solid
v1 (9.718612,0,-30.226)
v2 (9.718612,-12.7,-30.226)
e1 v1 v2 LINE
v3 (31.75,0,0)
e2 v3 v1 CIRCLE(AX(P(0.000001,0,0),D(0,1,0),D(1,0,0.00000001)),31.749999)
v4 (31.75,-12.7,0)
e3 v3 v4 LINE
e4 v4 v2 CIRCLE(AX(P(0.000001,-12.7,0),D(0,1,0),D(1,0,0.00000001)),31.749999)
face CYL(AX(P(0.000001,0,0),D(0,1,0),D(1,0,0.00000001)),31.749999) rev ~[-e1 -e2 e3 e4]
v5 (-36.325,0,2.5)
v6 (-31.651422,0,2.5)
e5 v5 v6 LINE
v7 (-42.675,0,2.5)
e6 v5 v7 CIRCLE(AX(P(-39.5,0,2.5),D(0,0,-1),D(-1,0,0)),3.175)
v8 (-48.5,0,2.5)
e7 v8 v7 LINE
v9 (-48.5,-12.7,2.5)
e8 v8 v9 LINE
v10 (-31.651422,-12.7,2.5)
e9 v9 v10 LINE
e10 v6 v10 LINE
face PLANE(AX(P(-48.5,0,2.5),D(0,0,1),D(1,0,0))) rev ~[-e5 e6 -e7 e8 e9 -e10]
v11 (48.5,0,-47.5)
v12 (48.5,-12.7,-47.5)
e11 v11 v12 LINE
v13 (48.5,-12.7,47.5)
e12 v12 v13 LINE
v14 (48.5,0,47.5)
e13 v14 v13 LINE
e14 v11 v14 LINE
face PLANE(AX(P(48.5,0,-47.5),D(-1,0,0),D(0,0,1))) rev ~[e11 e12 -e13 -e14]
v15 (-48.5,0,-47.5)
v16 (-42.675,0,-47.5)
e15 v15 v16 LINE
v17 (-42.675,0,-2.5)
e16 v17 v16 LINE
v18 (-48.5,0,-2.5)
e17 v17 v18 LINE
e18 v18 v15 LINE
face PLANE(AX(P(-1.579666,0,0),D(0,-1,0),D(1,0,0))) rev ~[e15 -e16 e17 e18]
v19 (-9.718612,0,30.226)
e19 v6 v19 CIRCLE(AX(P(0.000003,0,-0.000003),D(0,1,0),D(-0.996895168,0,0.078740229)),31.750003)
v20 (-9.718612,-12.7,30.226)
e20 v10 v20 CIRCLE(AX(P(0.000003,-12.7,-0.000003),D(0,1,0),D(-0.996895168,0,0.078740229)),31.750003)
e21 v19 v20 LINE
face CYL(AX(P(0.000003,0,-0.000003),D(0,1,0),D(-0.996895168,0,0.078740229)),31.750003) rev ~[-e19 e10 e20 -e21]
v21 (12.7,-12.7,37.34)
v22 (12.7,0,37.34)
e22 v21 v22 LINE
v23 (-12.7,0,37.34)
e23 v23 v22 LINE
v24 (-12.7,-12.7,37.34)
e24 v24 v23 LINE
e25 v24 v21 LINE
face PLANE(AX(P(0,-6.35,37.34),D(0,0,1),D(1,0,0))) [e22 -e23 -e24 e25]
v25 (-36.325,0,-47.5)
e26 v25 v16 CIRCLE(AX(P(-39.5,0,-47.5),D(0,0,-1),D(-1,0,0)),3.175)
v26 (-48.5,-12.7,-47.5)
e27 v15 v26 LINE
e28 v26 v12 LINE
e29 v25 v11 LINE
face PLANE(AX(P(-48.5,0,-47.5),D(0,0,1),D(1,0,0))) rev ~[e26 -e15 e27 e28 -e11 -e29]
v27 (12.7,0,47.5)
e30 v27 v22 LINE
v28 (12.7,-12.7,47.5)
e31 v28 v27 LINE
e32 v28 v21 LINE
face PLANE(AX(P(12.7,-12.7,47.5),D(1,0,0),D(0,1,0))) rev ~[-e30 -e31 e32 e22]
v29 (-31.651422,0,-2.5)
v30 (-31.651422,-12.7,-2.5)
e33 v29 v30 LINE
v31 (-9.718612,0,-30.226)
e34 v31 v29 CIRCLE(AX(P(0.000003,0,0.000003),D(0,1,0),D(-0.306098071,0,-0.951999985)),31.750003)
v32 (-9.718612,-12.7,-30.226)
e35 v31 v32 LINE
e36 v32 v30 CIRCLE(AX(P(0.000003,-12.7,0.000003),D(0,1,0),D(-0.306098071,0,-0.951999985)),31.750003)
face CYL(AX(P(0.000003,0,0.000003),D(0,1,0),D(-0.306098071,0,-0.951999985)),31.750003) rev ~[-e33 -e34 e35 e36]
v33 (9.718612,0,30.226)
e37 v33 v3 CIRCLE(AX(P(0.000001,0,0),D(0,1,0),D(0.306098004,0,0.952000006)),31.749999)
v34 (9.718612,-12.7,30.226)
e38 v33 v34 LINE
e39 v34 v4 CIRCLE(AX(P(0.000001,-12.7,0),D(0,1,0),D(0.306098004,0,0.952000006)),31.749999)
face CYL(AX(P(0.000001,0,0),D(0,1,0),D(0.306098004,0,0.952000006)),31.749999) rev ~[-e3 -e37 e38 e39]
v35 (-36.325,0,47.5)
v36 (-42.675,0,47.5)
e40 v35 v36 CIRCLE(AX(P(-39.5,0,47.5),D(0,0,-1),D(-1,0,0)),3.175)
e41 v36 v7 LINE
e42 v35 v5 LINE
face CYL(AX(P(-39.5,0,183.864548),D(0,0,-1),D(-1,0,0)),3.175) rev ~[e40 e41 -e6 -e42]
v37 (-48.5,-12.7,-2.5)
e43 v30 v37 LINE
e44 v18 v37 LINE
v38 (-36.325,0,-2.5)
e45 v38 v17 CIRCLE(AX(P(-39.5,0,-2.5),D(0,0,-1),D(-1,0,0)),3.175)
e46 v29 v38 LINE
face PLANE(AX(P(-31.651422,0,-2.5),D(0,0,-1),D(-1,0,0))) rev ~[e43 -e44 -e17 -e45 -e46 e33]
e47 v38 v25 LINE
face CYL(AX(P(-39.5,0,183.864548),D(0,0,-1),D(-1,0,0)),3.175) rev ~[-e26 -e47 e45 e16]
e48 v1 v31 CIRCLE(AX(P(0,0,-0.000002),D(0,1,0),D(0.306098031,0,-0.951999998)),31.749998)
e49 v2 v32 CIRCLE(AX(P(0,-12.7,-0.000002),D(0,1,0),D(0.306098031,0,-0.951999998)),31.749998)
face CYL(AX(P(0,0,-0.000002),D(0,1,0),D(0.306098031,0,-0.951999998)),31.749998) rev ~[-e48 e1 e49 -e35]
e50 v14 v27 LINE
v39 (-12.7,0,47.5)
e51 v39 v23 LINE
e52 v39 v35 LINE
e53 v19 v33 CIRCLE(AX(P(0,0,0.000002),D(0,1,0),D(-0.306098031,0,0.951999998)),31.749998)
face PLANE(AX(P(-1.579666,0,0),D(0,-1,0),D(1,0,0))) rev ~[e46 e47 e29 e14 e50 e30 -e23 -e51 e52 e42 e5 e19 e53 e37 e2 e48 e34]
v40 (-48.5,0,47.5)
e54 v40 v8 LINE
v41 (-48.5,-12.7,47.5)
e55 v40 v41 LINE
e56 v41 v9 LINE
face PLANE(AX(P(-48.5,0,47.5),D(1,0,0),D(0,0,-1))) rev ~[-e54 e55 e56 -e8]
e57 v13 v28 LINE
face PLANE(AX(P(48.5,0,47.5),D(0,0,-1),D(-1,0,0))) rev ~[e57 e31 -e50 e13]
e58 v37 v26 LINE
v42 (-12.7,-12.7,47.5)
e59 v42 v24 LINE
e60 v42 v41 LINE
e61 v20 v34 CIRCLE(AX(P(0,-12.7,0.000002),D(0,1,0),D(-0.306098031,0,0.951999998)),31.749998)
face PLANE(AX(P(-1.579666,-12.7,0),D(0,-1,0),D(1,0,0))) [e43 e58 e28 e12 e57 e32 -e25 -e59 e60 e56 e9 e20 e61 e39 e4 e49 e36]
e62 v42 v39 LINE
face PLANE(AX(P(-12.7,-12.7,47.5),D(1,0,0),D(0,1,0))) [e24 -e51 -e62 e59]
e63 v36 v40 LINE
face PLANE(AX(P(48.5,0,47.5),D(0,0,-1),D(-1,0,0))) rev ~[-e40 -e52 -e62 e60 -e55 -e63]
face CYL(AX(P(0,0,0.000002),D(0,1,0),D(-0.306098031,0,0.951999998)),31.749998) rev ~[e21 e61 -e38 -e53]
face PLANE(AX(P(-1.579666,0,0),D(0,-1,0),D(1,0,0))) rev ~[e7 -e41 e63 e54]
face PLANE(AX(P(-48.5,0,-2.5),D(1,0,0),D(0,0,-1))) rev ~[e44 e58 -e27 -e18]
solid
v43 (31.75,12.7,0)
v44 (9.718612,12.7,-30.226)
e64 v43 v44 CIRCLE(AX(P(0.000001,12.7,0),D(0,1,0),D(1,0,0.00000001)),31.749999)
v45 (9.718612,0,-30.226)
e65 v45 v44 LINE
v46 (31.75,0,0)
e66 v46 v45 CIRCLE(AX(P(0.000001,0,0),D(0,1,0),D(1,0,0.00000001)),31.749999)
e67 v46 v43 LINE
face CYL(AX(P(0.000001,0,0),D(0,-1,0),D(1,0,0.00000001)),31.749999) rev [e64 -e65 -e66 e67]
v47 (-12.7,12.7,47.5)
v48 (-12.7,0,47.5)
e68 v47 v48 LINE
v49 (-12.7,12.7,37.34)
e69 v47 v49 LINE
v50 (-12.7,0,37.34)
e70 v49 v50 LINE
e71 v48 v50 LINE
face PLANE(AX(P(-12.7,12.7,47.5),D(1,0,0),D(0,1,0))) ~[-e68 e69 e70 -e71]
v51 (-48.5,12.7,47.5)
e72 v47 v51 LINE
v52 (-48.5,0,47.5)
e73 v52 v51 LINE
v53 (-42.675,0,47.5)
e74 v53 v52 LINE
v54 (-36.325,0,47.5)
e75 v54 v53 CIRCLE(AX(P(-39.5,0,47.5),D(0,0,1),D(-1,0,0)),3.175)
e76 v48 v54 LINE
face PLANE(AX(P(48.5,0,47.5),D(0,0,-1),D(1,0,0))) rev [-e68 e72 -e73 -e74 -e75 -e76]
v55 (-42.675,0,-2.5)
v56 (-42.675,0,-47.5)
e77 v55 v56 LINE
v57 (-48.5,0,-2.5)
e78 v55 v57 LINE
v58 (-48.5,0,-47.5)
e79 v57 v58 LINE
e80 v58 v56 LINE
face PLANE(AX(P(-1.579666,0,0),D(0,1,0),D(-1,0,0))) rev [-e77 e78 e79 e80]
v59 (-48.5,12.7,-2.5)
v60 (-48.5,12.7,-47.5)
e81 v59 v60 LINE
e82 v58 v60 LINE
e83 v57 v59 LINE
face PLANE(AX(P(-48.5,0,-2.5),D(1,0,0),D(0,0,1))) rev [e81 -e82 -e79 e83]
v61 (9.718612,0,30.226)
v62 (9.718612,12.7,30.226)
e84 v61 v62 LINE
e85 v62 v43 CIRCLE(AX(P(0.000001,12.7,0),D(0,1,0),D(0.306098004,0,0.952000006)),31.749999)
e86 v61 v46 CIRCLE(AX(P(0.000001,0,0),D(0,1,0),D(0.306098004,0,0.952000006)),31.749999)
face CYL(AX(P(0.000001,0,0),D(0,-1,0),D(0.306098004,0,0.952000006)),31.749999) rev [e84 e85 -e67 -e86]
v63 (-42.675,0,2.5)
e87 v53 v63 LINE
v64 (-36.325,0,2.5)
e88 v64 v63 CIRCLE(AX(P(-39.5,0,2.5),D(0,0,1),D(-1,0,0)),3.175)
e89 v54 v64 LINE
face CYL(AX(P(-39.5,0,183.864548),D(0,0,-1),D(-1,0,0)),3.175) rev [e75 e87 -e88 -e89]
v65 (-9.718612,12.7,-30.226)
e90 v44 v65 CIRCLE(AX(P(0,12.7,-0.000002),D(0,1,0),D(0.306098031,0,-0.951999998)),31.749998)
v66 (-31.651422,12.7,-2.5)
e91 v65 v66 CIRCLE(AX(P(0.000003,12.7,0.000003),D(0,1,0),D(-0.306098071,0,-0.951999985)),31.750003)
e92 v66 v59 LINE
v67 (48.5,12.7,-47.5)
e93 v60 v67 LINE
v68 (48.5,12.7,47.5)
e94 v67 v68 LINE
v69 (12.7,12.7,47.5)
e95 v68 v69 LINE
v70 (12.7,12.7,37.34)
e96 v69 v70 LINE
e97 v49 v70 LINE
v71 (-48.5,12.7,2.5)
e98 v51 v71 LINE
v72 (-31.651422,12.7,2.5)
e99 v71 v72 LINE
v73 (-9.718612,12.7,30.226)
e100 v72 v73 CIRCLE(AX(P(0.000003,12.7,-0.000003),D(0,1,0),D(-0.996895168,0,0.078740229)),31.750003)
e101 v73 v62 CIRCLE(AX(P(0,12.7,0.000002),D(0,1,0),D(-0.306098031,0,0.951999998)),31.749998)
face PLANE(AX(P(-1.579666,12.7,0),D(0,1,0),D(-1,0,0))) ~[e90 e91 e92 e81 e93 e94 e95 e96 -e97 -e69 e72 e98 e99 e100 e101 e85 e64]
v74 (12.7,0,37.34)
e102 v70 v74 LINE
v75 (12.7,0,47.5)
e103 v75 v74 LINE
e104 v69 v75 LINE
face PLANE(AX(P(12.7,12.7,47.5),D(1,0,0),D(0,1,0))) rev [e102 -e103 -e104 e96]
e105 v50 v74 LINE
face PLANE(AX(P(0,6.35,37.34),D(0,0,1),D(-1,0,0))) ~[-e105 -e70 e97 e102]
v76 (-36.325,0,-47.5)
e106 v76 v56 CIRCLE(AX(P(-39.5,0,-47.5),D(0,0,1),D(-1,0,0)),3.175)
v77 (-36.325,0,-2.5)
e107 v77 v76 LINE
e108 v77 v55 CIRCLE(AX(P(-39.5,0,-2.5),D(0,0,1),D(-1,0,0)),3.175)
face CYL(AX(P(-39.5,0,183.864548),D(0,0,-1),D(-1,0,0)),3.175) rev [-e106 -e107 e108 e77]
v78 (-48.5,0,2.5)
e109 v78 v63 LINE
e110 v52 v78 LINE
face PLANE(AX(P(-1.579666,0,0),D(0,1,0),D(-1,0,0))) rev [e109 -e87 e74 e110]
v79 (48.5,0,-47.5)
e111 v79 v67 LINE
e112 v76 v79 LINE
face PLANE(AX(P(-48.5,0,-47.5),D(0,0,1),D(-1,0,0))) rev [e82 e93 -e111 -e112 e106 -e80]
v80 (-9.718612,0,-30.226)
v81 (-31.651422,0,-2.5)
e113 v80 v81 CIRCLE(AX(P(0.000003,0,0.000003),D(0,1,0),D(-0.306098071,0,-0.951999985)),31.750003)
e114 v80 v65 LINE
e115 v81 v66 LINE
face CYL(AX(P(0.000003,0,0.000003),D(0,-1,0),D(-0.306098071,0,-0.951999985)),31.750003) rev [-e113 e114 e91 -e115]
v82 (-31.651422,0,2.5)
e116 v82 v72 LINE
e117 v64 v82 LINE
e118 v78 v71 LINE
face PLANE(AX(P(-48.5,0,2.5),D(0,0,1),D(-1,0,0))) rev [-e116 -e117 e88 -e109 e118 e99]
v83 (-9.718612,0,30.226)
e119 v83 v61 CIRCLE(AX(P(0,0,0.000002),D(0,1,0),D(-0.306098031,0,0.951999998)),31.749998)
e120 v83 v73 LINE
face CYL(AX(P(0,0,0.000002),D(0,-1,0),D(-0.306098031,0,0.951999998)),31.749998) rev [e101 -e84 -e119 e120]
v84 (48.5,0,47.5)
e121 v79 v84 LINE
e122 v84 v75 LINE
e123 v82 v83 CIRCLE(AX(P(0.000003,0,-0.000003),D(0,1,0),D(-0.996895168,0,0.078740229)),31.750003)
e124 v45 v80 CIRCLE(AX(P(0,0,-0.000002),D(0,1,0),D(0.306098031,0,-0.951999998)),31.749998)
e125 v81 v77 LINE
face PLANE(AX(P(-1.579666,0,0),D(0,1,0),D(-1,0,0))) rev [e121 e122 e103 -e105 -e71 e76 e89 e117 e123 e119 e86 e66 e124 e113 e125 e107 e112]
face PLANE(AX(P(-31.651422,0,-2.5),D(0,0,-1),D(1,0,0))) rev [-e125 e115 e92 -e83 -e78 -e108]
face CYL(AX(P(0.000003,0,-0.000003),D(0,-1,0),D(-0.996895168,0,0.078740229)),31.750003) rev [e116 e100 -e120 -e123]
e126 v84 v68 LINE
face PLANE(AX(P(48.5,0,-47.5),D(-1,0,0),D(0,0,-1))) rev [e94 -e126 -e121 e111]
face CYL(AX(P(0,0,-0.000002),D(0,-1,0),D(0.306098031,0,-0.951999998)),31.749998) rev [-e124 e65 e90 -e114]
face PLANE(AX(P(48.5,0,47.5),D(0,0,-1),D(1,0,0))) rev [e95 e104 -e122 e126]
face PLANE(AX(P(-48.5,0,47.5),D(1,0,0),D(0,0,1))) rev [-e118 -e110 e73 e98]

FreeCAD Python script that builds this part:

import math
import FreeCAD as App
import Part
import Sketcher

V = App.Vector
Q = App.Units.Quantity

doc = App.newDocument("Part")
params = doc.addObject("Spreadsheet::Sheet", "Params")
for row, (alias, value) in enumerate([
    ("sketch1_radius", "1.2500001 in"),
    ("pad1_length", "0.5 in"),
    ("sketch2_width", "1 in"),
    ("sketch2_height", "0.5 in"),
    ("pocket1_length", "0.4 in"),
    ("sketch3_diameter", "0.25 in"),
    ("hole_diameter", "0.25 in"),
    ("sketch4_diameter", "0.25 in"),
    ("hole2_diameter", "0.25 in"),
], start=1):
    params.set(f"A{row}", alias)
    params.set(f"B{row}", "=" + value)
    params.setAlias(f"B{row}", alias)

body = doc.addObject("PartDesign::Body", "Body")

# Sketch on XZ plane
sketch1 = body.newObject("Sketcher::SketchObject", "Sketch")
sketch1.AttachmentSupport = (doc.getObject("XZ_Plane"), [""])
sketch1.MapMode = "FlatFace"
sketch1.addGeometry([
    Part.ArcOfCircle(Part.Circle(V(0, 0, 0), V(0, 0, 1), 32), math.radians(108), math.radians(175)),  # 0
    Part.ArcOfCircle(Part.Circle(V(0, 0, 0), V(0, 0, 1), 32), math.radians(72), math.radians(108)),  # 1
    Part.ArcOfCircle(Part.Circle(V(0, 0, 0), V(0, 0, 1), 32), math.radians(0), math.radians(72)),  # 2
    Part.ArcOfCircle(Part.Circle(V(0, 0, 0), V(0, 0, 1), 32), math.radians(-72), math.radians(0)),  # 3
    Part.ArcOfCircle(Part.Circle(V(0, 0, 0), V(0, 0, 1), 32), math.radians(-108), math.radians(-72)),  # 4
    Part.ArcOfCircle(Part.Circle(V(0, 0, 0), V(0, 0, 1), 32), math.radians(-175), math.radians(-108)),  # 5
    Part.LineSegment(V(-32, -2, 0), V(-48, -2, 0)),  # 6
    Part.LineSegment(V(-48, -2, 0), V(-48, -48, 0)),  # 7
    Part.LineSegment(V(-48, -48, 0), V(48, -48, 0)),  # 8
    Part.LineSegment(V(48, -48, 0), V(48, 48, 0)),  # 9
    Part.LineSegment(V(48, 48, 0), V(-48, 48, 0)),  # 10
    Part.LineSegment(V(-48, 48, 0), V(-48, 2, 0)),  # 11
    Part.LineSegment(V(-48, 2, 0), V(-32, 2, 0)),  # 12
], False)
sketch1.addConstraint([
    Sketcher.Constraint("Tangent", 0, 1, 1, 2),
    Sketcher.Constraint("Tangent", 1, 1, 2, 2),
    Sketcher.Constraint("Tangent", 2, 1, 3, 2),
    Sketcher.Constraint("Tangent", 3, 1, 4, 2),
    Sketcher.Constraint("Tangent", 4, 1, 5, 2),
    Sketcher.Constraint("Coincident", 5, 1, 6, 1),
    Sketcher.Constraint("Coincident", 6, 2, 7, 1),
    Sketcher.Constraint("Coincident", 7, 2, 8, 1),
    Sketcher.Constraint("Coincident", 8, 2, 9, 1),
    Sketcher.Constraint("Coincident", 9, 2, 10, 1),
    Sketcher.Constraint("Coincident", 10, 2, 11, 1),
    Sketcher.Constraint("Coincident", 11, 2, 12, 1),
    Sketcher.Constraint("Coincident", 12, 2, 0, 2),
    Sketcher.Constraint("Horizontal", 6),
    Sketcher.Constraint("Vertical", 7),
    Sketcher.Constraint("Horizontal", 8),
    Sketcher.Constraint("Vertical", 9),
    Sketcher.Constraint("Horizontal", 10),
    Sketcher.Constraint("Vertical", 11),
    Sketcher.Constraint("Horizontal", 12),
    Sketcher.Constraint("Coincident", 0, 3, -1, 1),
    Sketcher.Constraint("Coincident", 2, 3, -1, 1),
    Sketcher.Constraint("Coincident", 4, 3, -1, 1),
    Sketcher.Constraint("Equal", 0, 5),
    Sketcher.Constraint("Symmetric", 7, 2, 9, 2, -1, 1),
    Sketcher.Constraint("Symmetric", 6, 2, 11, 2, -1),
    Sketcher.Constraint("PointOnObject", 2, 1, -1),
    Sketcher.Constraint("Horizontal", 0, 1, 1, 1),
    Sketcher.Constraint("Horizontal", 3, 1, 4, 1),
    Sketcher.Constraint("Vertical", 1, 1, 3, 1),
    Sketcher.Constraint("Radius", 0, Q("1.2500001 in")),
    Sketcher.Constraint("DistanceY", -1, 1, 0, 1, Q("1.19 in")),
    Sketcher.Constraint("DistanceX", 8, 1, 8, 2, Q("97 mm")),
    Sketcher.Constraint("DistanceY", 7, 2, 7, 1, Q("45 mm")),
    Sketcher.Constraint("DistanceY", 9, 1, 9, 2, Q("95 mm")),
])
sketch1.setExpression("Constraints[30]", "Params.sketch1_radius")
pad1 = body.newObject("PartDesign::Pad", "Pad")
pad1.Profile = sketch1
pad1.setExpression("Length", "Params.pad1_length")

# Sketch on XY plane
sketch2 = body.newObject("Sketcher::SketchObject", "Sketch001")
sketch2.AttachmentSupport = (doc.getObject("XY_Plane"), [""])
sketch2.MapMode = "FlatFace"
sketch2.AttachmentOffset = App.Placement(V(0, 0, 47.5), App.Rotation())
sketch2.addGeometry([
    Part.LineSegment(V(-13, 0, 0), V(-13, -13, 0)),
    Part.LineSegment(V(-13, -13, 0), V(13, -13, 0)),
    Part.LineSegment(V(13, -13, 0), V(13, 0, 0)),
    Part.LineSegment(V(13, 0, 0), V(-13, 0, 0)),
], False)
sketch2.addConstraint([
    Sketcher.Constraint("Coincident", 0, 2, 1, 1),
    Sketcher.Constraint("Coincident", 1, 2, 2, 1),
    Sketcher.Constraint("Coincident", 2, 2, 3, 1),
    Sketcher.Constraint("Coincident", 3, 2, 0, 1),
    Sketcher.Constraint("Vertical", 0),
    Sketcher.Constraint("Horizontal", 1),
    Sketcher.Constraint("Vertical", 2),
    Sketcher.Constraint("Horizontal", 3),
    Sketcher.Constraint("Symmetric", 2, 2, 3, 2, -1, 1),
    Sketcher.Constraint("DistanceX", 1, 1, 1, 2, Q("1 in")),
    Sketcher.Constraint("DistanceY", 0, 2, 0, 1, Q("0.5 in")),
])
sketch2.setExpression("Constraints[9]", "Params.sketch2_width")
sketch2.setExpression("Constraints[10]", "Params.sketch2_height")
pocket1 = body.newObject("PartDesign::Pocket", "Pocket")
pocket1.Profile = sketch2
pocket1.setExpression("Length", "Params.pocket1_length")

# Sketch on XY plane
sketch3 = body.newObject("Sketcher::SketchObject", "Sketch002")
sketch3.AttachmentSupport = (doc.getObject("XY_Plane"), [""])
sketch3.MapMode = "FlatFace"
sketch3.AttachmentOffset = App.Placement(V(0, 0, 47.5), App.Rotation())
sketch3.addGeometry(Part.Circle(V(-39.5, 0, 0), V(0, 0, 1), 3.2), False)
sketch3.addConstraint([
    Sketcher.Constraint("PointOnObject", 0, 3, -1),
    Sketcher.Constraint("Diameter", 0, Q("0.25 in")),
    Sketcher.Constraint("DistanceX", 0, 3, -1, 1, Q("39.5 mm")),
])
sketch3.setExpression("Constraints[1]", "Params.sketch3_diameter")
doc.recompute()
hole = body.newObject("PartDesign::Hole", "Hole")
hole.Profile = sketch3
hole.ThreadType = "None"
hole.setExpression("Diameter", "Params.hole_diameter")
hole.DepthType = "ThroughAll"
body2 = doc.addObject("PartDesign::Body", "Body001")
doc.recompute()

mirroring = doc.addObject("Part::Mirroring", "Mirroring")
mirroring.Source = body
mirroring.Base = V(0, 0, 0)
mirroring.Normal = V(0, -1, 0)
body2.BaseFeature = mirroring
doc.recompute()

# Sketch on XY plane
sketch4 = body2.newObject("Sketcher::SketchObject", "Sketch003")
sketch4.AttachmentSupport = (doc.getObject("XY_Plane001"), [""])
sketch4.MapMode = "FlatFace"
sketch4.AttachmentOffset = App.Placement(V(0, 0, 47.5), App.Rotation())
sketch4.addGeometry(Part.Circle(V(-39.5, 0, 0), V(0, 0, 1), 3.2), False)
sketch4.addConstraint([
    Sketcher.Constraint("PointOnObject", 0, 3, -1),
    Sketcher.Constraint("Diameter", 0, Q("0.25 in")),
    Sketcher.Constraint("DistanceX", 0, 3, -1, 1, Q("39.5 mm")),
])
sketch4.setExpression("Constraints[1]", "Params.sketch4_diameter")
doc.recompute()
hole2 = body2.newObject("PartDesign::Hole", "Hole001")
hole2.Profile = sketch4
hole2.ThreadType = "None"
hole2.setExpression("Diameter", "Params.hole2_diameter")
hole2.DepthType = "ThroughAll"
mirroring.Visibility = False

doc.recompute()
